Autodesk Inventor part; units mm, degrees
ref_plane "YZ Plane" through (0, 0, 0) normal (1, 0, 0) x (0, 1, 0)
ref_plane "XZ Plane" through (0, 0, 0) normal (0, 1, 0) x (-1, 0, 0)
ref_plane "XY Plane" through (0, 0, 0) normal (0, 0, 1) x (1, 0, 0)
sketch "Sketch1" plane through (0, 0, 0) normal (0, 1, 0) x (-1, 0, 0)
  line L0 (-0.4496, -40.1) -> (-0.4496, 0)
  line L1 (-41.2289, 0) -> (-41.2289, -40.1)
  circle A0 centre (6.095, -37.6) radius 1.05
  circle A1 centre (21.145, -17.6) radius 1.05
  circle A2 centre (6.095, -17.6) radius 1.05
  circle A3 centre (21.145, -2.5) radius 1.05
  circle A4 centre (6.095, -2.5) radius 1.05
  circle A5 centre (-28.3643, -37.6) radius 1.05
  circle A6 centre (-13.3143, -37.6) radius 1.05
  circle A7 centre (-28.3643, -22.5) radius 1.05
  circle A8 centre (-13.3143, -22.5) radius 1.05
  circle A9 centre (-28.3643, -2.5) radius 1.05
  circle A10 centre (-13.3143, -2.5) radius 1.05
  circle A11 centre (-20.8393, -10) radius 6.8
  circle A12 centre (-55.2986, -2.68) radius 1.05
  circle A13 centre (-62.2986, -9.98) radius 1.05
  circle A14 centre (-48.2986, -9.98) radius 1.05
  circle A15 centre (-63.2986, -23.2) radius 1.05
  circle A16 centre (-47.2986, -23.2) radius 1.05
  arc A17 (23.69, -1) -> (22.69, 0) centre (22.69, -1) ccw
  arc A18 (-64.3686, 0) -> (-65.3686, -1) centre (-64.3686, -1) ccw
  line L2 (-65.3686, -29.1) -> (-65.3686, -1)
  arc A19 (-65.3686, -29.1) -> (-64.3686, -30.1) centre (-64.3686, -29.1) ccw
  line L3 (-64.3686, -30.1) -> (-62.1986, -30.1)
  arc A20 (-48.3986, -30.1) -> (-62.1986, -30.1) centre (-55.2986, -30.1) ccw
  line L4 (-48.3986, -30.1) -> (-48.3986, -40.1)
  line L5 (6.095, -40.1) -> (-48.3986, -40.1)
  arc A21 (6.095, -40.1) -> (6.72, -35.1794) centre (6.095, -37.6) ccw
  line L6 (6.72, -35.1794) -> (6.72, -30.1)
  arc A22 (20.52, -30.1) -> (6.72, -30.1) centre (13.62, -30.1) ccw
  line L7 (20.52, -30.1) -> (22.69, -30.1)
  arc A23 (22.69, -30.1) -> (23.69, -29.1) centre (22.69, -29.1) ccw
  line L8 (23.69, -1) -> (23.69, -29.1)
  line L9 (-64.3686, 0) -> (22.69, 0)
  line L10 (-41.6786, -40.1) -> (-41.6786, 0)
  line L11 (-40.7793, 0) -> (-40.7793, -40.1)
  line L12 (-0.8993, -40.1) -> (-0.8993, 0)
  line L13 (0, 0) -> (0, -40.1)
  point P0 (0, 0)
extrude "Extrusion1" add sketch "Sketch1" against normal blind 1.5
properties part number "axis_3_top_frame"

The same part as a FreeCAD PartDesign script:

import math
import FreeCAD as App
import Part
import Sketcher
Q = App.Units.Quantity

doc = App.newDocument("Part")
body = doc.addObject("PartDesign::Body", "Body")

sketch1 = doc.addObject("Sketcher::SketchObject", "Sketch")
body.addObject(sketch1)
sketch1.AttachmentSupport = (doc.XZ_Plane, [""])
sketch1.MapMode = "FlatFace"
sketch1.addGeometry([
    Part.ArcOfCircle(Part.Circle(App.Vector(-6.1, -37.6, 0), App.Vector(0, 0, 1), 2.5), math.radians(104), math.radians(270)),
    Part.LineSegment(App.Vector(-6.7, -35.2, 0), App.Vector(-6.7, -30.1, 0)),
    Part.ArcOfCircle(Part.Circle(App.Vector(-13.6, -30.1, 0), App.Vector(0, 0, 1), 6.9), math.radians(0), math.radians(180)),
    Part.LineSegment(App.Vector(-20.5, -30.1, 0), App.Vector(-22.7, -30.1, 0)),
    Part.ArcOfCircle(Part.Circle(App.Vector(-22.7, -29.1, 0), App.Vector(0, 0, 1), 1), math.radians(180), math.radians(270)),
    Part.LineSegment(App.Vector(-23.7, -29.1, 0), App.Vector(-23.7, -1, 0)),
    Part.ArcOfCircle(Part.Circle(App.Vector(-22.7, -1, 0), App.Vector(0, 0, 1), 1), math.radians(90), math.radians(180)),
    Part.LineSegment(App.Vector(-22.7, 0, 0), App.Vector(64.4, 0, 0)),
    Part.ArcOfCircle(Part.Circle(App.Vector(64.4, -1, 0), App.Vector(0, 0, 1), 1), math.radians(0), math.radians(90)),
    Part.LineSegment(App.Vector(65.4, -1, 0), App.Vector(65.4, -29.1, 0)),
    Part.ArcOfCircle(Part.Circle(App.Vector(64.4, -29.1, 0), App.Vector(0, 0, 1), 1), math.radians(-90), math.radians(0)),
    Part.LineSegment(App.Vector(64.4, -30.1, 0), App.Vector(62.2, -30.1, 0)),
    Part.ArcOfCircle(Part.Circle(App.Vector(55.3, -30.1, 0), App.Vector(0, 0, 1), 6.9), math.radians(0), math.radians(180)),
    Part.LineSegment(App.Vector(48.4, -30.1, 0), App.Vector(48.4, -40.1, 0)),
    Part.LineSegment(App.Vector(48.4, -40.1, 0), App.Vector(-6.1, -40.1, 0)),
    Part.Circle(App.Vector(13.3, -2.5, 0), App.Vector(0, 0, 1), 1.1),
    Part.Circle(App.Vector(28.4, -37.6, 0), App.Vector(0, 0, 1), 1.1),
    Part.Circle(App.Vector(28.4, -22.5, 0), App.Vector(0, 0, 1), 1.1),
    Part.Circle(App.Vector(13.3, -37.6, 0), App.Vector(0, 0, 1), 1.1),
    Part.Circle(App.Vector(13.3, -22.5, 0), App.Vector(0, 0, 1), 1.1),
    Part.Circle(App.Vector(28.4, -2.5, 0), App.Vector(0, 0, 1), 1.1),
    Part.Circle(App.Vector(20.8, -10, 0), App.Vector(0, 0, 1), 6.8),
    Part.Circle(App.Vector(-21.1, -2.5, 0), App.Vector(0, 0, 1), 1.1),
    Part.Circle(App.Vector(-6.1, -37.6, 0), App.Vector(0, 0, 1), 1.1),
    Part.Circle(App.Vector(-6.1, -17.6, 0), App.Vector(0, 0, 1), 1.1),
    Part.Circle(App.Vector(-21.1, -17.6, 0), App.Vector(0, 0, 1), 1.1),
    Part.Circle(App.Vector(-6.1, -2.5, 0), App.Vector(0, 0, 1), 1.1),
    Part.Circle(App.Vector(55.3, -2.7, 0), App.Vector(0, 0, 1), 1.1),
    Part.Circle(App.Vector(63.3, -23.2, 0), App.Vector(0, 0, 1), 1.1),
    Part.Circle(App.Vector(47.3, -23.2, 0), App.Vector(0, 0, 1), 1.1),
    Part.Circle(App.Vector(62.3, -10, 0), App.Vector(0, 0, 1), 1.1),
    Part.Circle(App.Vector(48.3, -10, 0), App.Vector(0, 0, 1), 1.1),
], False)
sketch1.addConstraint([
    Sketcher.Constraint("Coincident", 0, 1, 1, 1),
    Sketcher.Constraint("Tangent", 1, 2, 2, 1),
    Sketcher.Constraint("Coincident", 2, 2, 3, 1),
    Sketcher.Constraint("Tangent", 3, 2, 4, 2),
    Sketcher.Constraint("Tangent", 4, 1, 5, 1),
    Sketcher.Constraint("Tangent", 5, 2, 6, 2),
    Sketcher.Constraint("Tangent", 6, 1, 7, 1),
    Sketcher.Constraint("Tangent", 7, 2, 8, 2),
    Sketcher.Constraint("Tangent", 8, 1, 9, 1),
    Sketcher.Constraint("Tangent", 9, 2, 10, 2),
    Sketcher.Constraint("Tangent", 10, 1, 11, 1),
    Sketcher.Constraint("Coincident", 11, 2, 12, 1),
    Sketcher.Constraint("Tangent", 12, 2, 13, 1),
    Sketcher.Constraint("Coincident", 13, 2, 14, 1),
    Sketcher.Constraint("Tangent", 14, 2, 0, 2),
    Sketcher.Constraint("Vertical", 1),
    Sketcher.Constraint("Horizontal", 3),
    Sketcher.Constraint("Vertical", 5),
    Sketcher.Constraint("Horizontal", 7),
    Sketcher.Constraint("Vertical", 9),
    Sketcher.Constraint("Horizontal", 11),
    Sketcher.Constraint("Vertical", 13),
    Sketcher.Constraint("Horizontal", 14),
    Sketcher.Constraint("Coincident", 23, 3, 0, 3),
    Sketcher.Constraint("Equal", 4, 6),
    Sketcher.Constraint("Equal", 6, 8),
    Sketcher.Constraint("Equal", 8, 10),
    Sketcher.Constraint("Equal", 2, 12),
    Sketcher.Constraint("Equal", 15, 16),
    Sketcher.Constraint("Equal", 16, 17),
    Sketcher.Constraint("Equal", 17, 18),
    Sketcher.Constraint("Equal", 18, 19),
    Sketcher.Constraint("Equal", 19, 20),
    Sketcher.Constraint("Equal", 20, 22),
    Sketcher.Constraint("Equal", 22, 23),
    Sketcher.Constraint("Equal", 23, 24),
    Sketcher.Constraint("Equal", 24, 25),
    Sketcher.Constraint("Equal", 25, 26),
    Sketcher.Constraint("Equal", 26, 27),
    Sketcher.Constraint("Equal", 27, 28),
    Sketcher.Constraint("Equal", 28, 29),
    Sketcher.Constraint("Equal", 29, 30),
    Sketcher.Constraint("Equal", 30, 31),
    Sketcher.Constraint("PointOnObject", 6, 1, -1),
    Sketcher.Constraint("Horizontal", 4, 3, 10, 3),
    Sketcher.Constraint("Horizontal", 2, 3, 12, 3),
    Sketcher.Constraint("Horizontal", 0, 3, 16, 3),
    Sketcher.Constraint("Horizontal", 16, 3, 18, 3),
    Sketcher.Constraint("Horizontal", 17, 3, 19, 3),
    Sketcher.Constraint("Horizontal", 15, 3, 20, 3),
    Sketcher.Constraint("Horizontal", 20, 3, 22, 3),
    Sketcher.Constraint("Horizontal", 24, 3, 25, 3),
    Sketcher.Constraint("Horizontal", 22, 3, 26, 3),
    Sketcher.Constraint("Horizontal", 28, 3, 29, 3),
    Sketcher.Constraint("Horizontal", 30, 3, 31, 3),
    Sketcher.Constraint("Horizontal", 1, 2, 2, 2),
    Sketcher.Constraint("Vertical", 16, 3, 17, 3),
    Sketcher.Constraint("Vertical", 15, 3, 18, 3),
    Sketcher.Constraint("Vertical", 18, 3, 19, 3),
    Sketcher.Constraint("Vertical", 17, 3, 20, 3),
    Sketcher.Constraint("Vertical", 23, 3, 24, 3),
    Sketcher.Constraint("Vertical", 22, 3, 25, 3),
    Sketcher.Constraint("Vertical", 24, 3, 26, 3),
    Sketcher.Constraint("Vertical", 12, 3, 27, 3),
    Sketcher.Constraint("Equal", 3, 11),
    Sketcher.Constraint("Radius", 4, Q("1 mm")),
    Sketcher.Constraint("Diameter", 15, Q("2.1 mm")),
    Sketcher.Constraint("Diameter", 21, Q("13.6 mm")),
    Sketcher.Constraint("Radius", 0, Q("2.5 mm")),
    Sketcher.Constraint("Radius", 2, Q("6.9 mm")),
    Sketcher.Constraint("DistanceY", 13, 2, 13, 1, Q("10 mm")),
    Sketcher.Constraint("DistanceY", 5, 1, 5, 2, Q("28.1 mm")),
    Sketcher.Constraint("DistanceY", 21, 3, -1, 1, Q("10 mm")),
    Sketcher.Constraint("DistanceY", 17, 3, 15, 3, Q("20 mm")),
    Sketcher.Constraint("DistanceY", 0, 3, 24, 3, Q("20 mm")),
    Sketcher.Constraint("DistanceX", 12, 3, 28, 3, Q("8 mm")),
    Sketcher.Constraint("DistanceX", 29, 3, 12, 3, Q("8 mm")),
    Sketcher.Constraint("DistanceX", 27, 3, 30, 3, Q("7 mm")),
    Sketcher.Constraint("DistanceX", 31, 3, 27, 3, Q("7 mm")),
    Sketcher.Constraint("DistanceX", 3, 2, 3, 1, Q("2.17 mm")),
    Sketcher.Constraint("DistanceY", 15, 3, -1, 1, Q("2.5 mm")),
    Sketcher.Constraint("DistanceY", 28, 3, -1, 1, Q("23.2 mm")),
    Sketcher.Constraint("DistanceY", 30, 3, 27, 3, Q("7.3 mm")),
    Sketcher.Constraint("DistanceX", 2, 3, -1, 1, Q("13.62 mm")),
    Sketcher.Constraint("DistanceY", 27, 3, -1, 1, Q("2.68 mm")),
    Sketcher.Constraint("DistanceX", 15, 3, 16, 3, Q("15.05 mm")),
    Sketcher.Constraint("DistanceX", 22, 3, 0, 3, Q("15.05 mm")),
    Sketcher.Constraint("DistanceX", 7, 1, 7, 2, Q("87.0586 mm")),
    Sketcher.Constraint("DistanceX", 14, 2, 14, 1, Q("54.4936 mm")),
    Sketcher.Constraint("DistanceX", 21, 3, 20, 3, Q("7.525 mm")),
    Sketcher.Constraint("DistanceX", -1, 1, 15, 3, Q("13.3143 mm")),
])
pad1 = doc.addObject("PartDesign::Pad", "Pad")
body.addObject(pad1)
pad1.Profile = sketch1
pad1.Length = 1.5

doc.recompute()
